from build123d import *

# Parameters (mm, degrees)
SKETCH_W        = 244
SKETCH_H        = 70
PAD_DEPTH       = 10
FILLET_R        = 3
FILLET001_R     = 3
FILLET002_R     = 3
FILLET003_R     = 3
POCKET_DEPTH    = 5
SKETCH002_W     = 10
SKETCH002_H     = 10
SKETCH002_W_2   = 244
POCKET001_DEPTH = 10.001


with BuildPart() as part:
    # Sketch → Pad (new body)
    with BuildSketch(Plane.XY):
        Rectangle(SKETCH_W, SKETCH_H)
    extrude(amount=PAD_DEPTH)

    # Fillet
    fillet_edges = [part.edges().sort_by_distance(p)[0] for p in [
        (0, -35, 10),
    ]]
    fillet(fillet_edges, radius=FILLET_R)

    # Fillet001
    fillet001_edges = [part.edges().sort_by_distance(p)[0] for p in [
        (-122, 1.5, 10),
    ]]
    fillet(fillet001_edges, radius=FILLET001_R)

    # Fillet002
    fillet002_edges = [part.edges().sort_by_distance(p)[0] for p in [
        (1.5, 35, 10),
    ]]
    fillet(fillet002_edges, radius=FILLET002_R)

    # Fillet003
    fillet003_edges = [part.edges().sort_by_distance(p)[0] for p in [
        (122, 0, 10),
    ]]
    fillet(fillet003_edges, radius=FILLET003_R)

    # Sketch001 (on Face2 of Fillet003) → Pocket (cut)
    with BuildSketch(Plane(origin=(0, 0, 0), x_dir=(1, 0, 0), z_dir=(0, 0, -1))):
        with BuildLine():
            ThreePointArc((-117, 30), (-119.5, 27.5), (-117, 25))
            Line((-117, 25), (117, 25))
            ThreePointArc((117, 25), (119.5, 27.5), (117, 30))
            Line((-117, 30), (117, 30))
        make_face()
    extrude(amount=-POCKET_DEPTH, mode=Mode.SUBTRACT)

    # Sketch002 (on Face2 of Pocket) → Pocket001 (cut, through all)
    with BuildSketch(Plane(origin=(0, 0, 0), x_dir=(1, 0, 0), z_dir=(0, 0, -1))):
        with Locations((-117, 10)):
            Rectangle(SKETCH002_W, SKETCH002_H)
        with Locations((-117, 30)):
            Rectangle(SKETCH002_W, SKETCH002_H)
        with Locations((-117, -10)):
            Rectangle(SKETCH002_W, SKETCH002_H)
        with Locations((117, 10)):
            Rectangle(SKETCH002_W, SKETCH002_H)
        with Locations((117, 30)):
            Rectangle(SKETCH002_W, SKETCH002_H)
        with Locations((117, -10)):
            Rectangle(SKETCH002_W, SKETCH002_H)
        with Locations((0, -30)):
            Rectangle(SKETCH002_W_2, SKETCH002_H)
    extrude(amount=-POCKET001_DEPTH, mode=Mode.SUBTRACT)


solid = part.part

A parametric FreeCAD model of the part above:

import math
import FreeCAD as App
import Part
import Sketcher

V = App.Vector


def edges_at(feature, points):
    """Names of the edges that pass closest to the given points."""
    edges = feature.Shape.Edges
    near = lambda p: min(range(len(edges)), key=lambda i: edges[i].distToShape(Part.Vertex(*p))[0])
    return sorted({f"Edge{near(p) + 1}" for p in points})


def add_polygon(sketch, points):
    """Adds a closed chain of lines whose ends are joined by coincident constraints."""
    first, n = sketch.GeometryCount, len(points)
    for a, b in zip(points, points[1:] + points[:1]):
        sketch.addGeometry(Part.LineSegment(App.Vector(*a, 0), App.Vector(*b, 0)), False)
    for i in range(n):
        sketch.addConstraint(Sketcher.Constraint("Coincident", first + i, 2, first + (i + 1) % n, 1))

doc = App.newDocument("Part")
body = doc.addObject("PartDesign::Body", "Body")

# Sketch on XY plane
sketch1 = doc.addObject("Sketcher::SketchObject", "Sketch")
body.addObject(sketch1)
sketch1.AttachmentSupport = (doc.XY_Plane, [""])
sketch1.MapMode = "FlatFace"
add_polygon(sketch1, [(-122, 35), (-122, -35), (122, -35), (122, 35)])  # lines 0-3
sketch1.addConstraint([
    Sketcher.Constraint("Vertical", 0),
    Sketcher.Constraint("Horizontal", 1),
    Sketcher.Constraint("Vertical", 2),
    Sketcher.Constraint("Horizontal", 3),
    Sketcher.Constraint("Symmetric", 0, 2, 2, 2, -1, 1),
    Sketcher.Constraint("DistanceX", 1, 1, 1, 2, 244.0),
    Sketcher.Constraint("DistanceY", 0, 2, 0, 1, 70.0),
])
pad1 = doc.addObject("PartDesign::Pad", "Pad")
body.addObject(pad1)
pad1.Profile = sketch1
pad1.Length = 10
doc.recompute()

fillet = doc.addObject("PartDesign::Fillet", "Fillet")
body.addObject(fillet)
fillet.Base = (pad1, edges_at(pad1, [(0, -35, 10)]))
fillet.Radius = 3
doc.recompute()

fillet2 = doc.addObject("PartDesign::Fillet", "Fillet001")
body.addObject(fillet2)
fillet2.Base = (fillet, edges_at(fillet, [(-122, 1.5, 10)]))
fillet2.Radius = 3
doc.recompute()

fillet3 = doc.addObject("PartDesign::Fillet", "Fillet002")
body.addObject(fillet3)
fillet3.Base = (fillet2, edges_at(fillet2, [(1.5, 35, 10)]))
fillet3.Radius = 3
doc.recompute()

fillet4 = doc.addObject("PartDesign::Fillet", "Fillet003")
body.addObject(fillet4)
fillet4.Base = (fillet3, edges_at(fillet3, [(122, 0, 10)]))
fillet4.Radius = 3

# Sketch on XY plane
sketch2 = doc.addObject("Sketcher::SketchObject", "Sketch001")
body.addObject(sketch2)
sketch2.AttachmentSupport = (doc.XY_Plane, [""])
sketch2.MapMode = "FlatFace"
sketch2.addGeometry([
    Part.ArcOfCircle(Part.Circle(V(-117, -27.5, 0), V(0, 0, 1), 2.5), math.radians(90), math.radians(270)),
    Part.LineSegment(V(-117, -25, 0), V(117, -25, 0)),
    Part.ArcOfCircle(Part.Circle(V(117, -27.5, 0), V(0, 0, 1), 2.5), math.radians(-90), math.radians(90)),
    Part.LineSegment(V(117, -30, 0), V(-117, -30, 0)),
], False)
sketch2.addConstraint([
    Sketcher.Constraint("Tangent", 0, 1, 1, 1),
    Sketcher.Constraint("Tangent", 1, 2, 2, 2),
    Sketcher.Constraint("Tangent", 2, 1, 3, 1),
    Sketcher.Constraint("Tangent", 3, 2, 0, 2),
    Sketcher.Constraint("Horizontal", 1),
    Sketcher.Constraint("Horizontal", 3),
    Sketcher.Constraint("Radius", 0, 2.5),
    Sketcher.Constraint("DistanceX", 1, 1, 1, 2, 234.0),
    Sketcher.Constraint("DistanceX", 0, 3, -1, 1, 117.0),
    Sketcher.Constraint("DistanceY", 0, 1, -1, 1, 25.0),
])
pocket1 = doc.addObject("PartDesign::Pocket", "Pocket")
body.addObject(pocket1)
pocket1.Profile = sketch2
pocket1.Length = 5
pocket1.Reversed = True

# Sketch on XY plane
sketch3 = doc.addObject("Sketcher::SketchObject", "Sketch002")
body.addObject(sketch3)
sketch3.AttachmentSupport = (doc.XY_Plane, [""])
sketch3.MapMode = "FlatFace"
add_polygon(sketch3, [(-122, -15), (-122, -5), (-112, -5), (-112, -15)])  # lines 0-3
add_polygon(sketch3, [(-122, -35), (-122, -25), (-112, -25), (-112, -35)])  # lines 4-7
add_polygon(sketch3, [(-122, 5), (-122, 15), (-112, 15), (-112, 5)])  # lines 8-11
add_polygon(sketch3, [(112, -15), (112, -5), (122, -5), (122, -15)])  # lines 12-15
add_polygon(sketch3, [(112, -35), (112, -25), (122, -25), (122, -35)])  # lines 16-19
add_polygon(sketch3, [(112, 5), (112, 15), (122, 15), (122, 5)])  # lines 20-23
add_polygon(sketch3, [(-122, 25), (-122, 35), (122, 35), (122, 25)])  # lines 24-27
sketch3.addConstraint([
    Sketcher.Constraint("Vertical", 0),
    Sketcher.Constraint("Horizontal", 1),
    Sketcher.Constraint("Vertical", 2),
    Sketcher.Constraint("Horizontal", 3),
    Sketcher.Constraint("Vertical", 4),
    Sketcher.Constraint("Horizontal", 5),
    Sketcher.Constraint("Vertical", 6),
    Sketcher.Constraint("Horizontal", 7),
    Sketcher.Constraint("Vertical", 8),
    Sketcher.Constraint("Horizontal", 9),
    Sketcher.Constraint("Vertical", 10),
    Sketcher.Constraint("Horizontal", 11),
    Sketcher.Constraint("Vertical", 12),
    Sketcher.Constraint("Horizontal", 13),
    Sketcher.Constraint("Vertical", 14),
    Sketcher.Constraint("Horizontal", 15),
    Sketcher.Constraint("Vertical", 16),
    Sketcher.Constraint("Horizontal", 17),
    Sketcher.Constraint("Vertical", 18),
    Sketcher.Constraint("Horizontal", 19),
    Sketcher.Constraint("Vertical", 20),
    Sketcher.Constraint("Horizontal", 21),
    Sketcher.Constraint("Vertical", 22),
    Sketcher.Constraint("Horizontal", 23),
    Sketcher.Constraint("Vertical", 24),
    Sketcher.Constraint("Horizontal", 25),
    Sketcher.Constraint("Vertical", 26),
    Sketcher.Constraint("Horizontal", 27),
    Sketcher.Constraint("Symmetric", 10, 2, 12, 2, -1, 1),
    Sketcher.Constraint("Symmetric", 8, 2, 14, 2, -1, 1),
    Sketcher.Constraint("Symmetric", 2, 2, 20, 2, -1, 1),
    Sketcher.Constraint("Symmetric", 0, 2, 22, 2, -1, 1),
    Sketcher.Constraint("Symmetric", 18, 2, 24, 2, -1, 1),
    Sketcher.Constraint("Symmetric", 7, 2, 25, 2, -1, 1),
    Sketcher.Constraint("Symmetric", 1, 2, 12, 2, -2),
    Sketcher.Constraint("Symmetric", 3, 2, 14, 2, -2),
    Sketcher.Constraint("Symmetric", 5, 2, 16, 2, -2),
    Sketcher.Constraint("Symmetric", 17, 2, 26, 2, -1),
    Sketcher.Constraint("Vertical", 3, 2, 4, 2),
    Sketcher.Constraint("Vertical", 2, 2, 5, 2),
    Sketcher.Constraint("Equal", 23, 0),
    Sketcher.Constraint("Equal", 2, 4),
    Sketcher.Constraint("DistanceX", 1, 1, 1, 2, 10.0),
    Sketcher.Constraint("DistanceX", 25, 1, 25, 2, 244.0),
    Sketcher.Constraint("DistanceY", 0, 2, -1, 1, 5.0),
    Sketcher.Constraint("DistanceY", 4, 2, -1, 1, 25.0),
])
pocket2 = doc.addObject("PartDesign::Pocket", "Pocket001")
body.addObject(pocket2)
pocket2.Profile = sketch3
pocket2.Type = "ThroughAll"
pocket2.Reversed = True

doc.recompute()
